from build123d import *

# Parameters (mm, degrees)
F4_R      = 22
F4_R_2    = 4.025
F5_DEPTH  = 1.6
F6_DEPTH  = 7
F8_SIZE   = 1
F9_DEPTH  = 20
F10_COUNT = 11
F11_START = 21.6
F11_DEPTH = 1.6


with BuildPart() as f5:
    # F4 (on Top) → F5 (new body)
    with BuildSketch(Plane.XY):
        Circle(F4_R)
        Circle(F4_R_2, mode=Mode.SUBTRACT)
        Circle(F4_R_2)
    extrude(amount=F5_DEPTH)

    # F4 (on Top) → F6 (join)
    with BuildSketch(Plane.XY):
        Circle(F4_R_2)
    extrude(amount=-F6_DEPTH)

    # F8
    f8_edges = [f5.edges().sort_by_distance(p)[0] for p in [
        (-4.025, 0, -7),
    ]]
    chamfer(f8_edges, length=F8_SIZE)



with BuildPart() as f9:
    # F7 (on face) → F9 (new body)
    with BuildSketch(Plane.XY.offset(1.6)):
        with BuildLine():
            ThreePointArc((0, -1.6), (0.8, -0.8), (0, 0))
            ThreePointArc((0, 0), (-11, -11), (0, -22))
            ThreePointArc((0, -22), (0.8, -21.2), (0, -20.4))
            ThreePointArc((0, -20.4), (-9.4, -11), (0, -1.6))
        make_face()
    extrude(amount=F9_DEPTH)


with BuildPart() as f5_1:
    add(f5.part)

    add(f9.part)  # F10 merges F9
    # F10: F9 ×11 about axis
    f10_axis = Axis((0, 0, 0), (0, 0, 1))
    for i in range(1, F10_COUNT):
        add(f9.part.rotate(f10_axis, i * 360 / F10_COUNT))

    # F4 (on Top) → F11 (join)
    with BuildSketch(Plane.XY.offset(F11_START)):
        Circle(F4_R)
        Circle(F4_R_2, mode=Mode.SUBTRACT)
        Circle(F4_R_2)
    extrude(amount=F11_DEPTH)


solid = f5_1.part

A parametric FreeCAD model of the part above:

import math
import FreeCAD as App
import Part
import Sketcher

V = App.Vector


def edges_at(feature, points):
    """Names of the edges that pass closest to the given points."""
    edges = feature.Shape.Edges
    near = lambda p: min(range(len(edges)), key=lambda i: edges[i].distToShape(Part.Vertex(*p))[0])
    return sorted({f"Edge{near(p) + 1}" for p in points})

doc = App.newDocument("Part")
body = doc.addObject("PartDesign::Body", "Body")

# Sketch on XY plane
sketch1 = body.newObject("Sketcher::SketchObject", "Sketch")
sketch1.AttachmentSupport = (doc.getObject("XY_Plane"), [""])
sketch1.MapMode = "FlatFace"
sketch1.addGeometry(Part.Circle(V(0, 0, 0), V(0, 0, 1), 22), False)
sketch1.addConstraint(Sketcher.Constraint("Coincident", 0, 3, -1, 1))
sketch1.addConstraint(Sketcher.Constraint("Diameter", 0, 44.0))
pad1 = body.newObject("PartDesign::Pad", "Pad")
pad1.Profile = sketch1
pad1.Length = 1.6

# Sketch on XY plane
sketch2 = body.newObject("Sketcher::SketchObject", "Sketch001")
sketch2.AttachmentSupport = (doc.getObject("XY_Plane"), [""])
sketch2.MapMode = "FlatFace"
sketch2.addGeometry(Part.Circle(V(0, 0, 0), V(0, 0, 1), 4), False)
sketch2.addConstraint(Sketcher.Constraint("Coincident", 0, 3, -1, 1))
sketch2.addConstraint(Sketcher.Constraint("Diameter", 0, 8.05))
pad2 = body.newObject("PartDesign::Pad", "Pad001")
pad2.Profile = sketch2
pad2.Length = 7
pad2.Reversed = True
doc.recompute()

chamfer = body.newObject("PartDesign::Chamfer", "Chamfer")
chamfer.Base = (pad2, edges_at(pad2, [(-4.025, 0, -7)]))
chamfer.Size = 1
body2 = doc.addObject("PartDesign::Body", "Body001")

# Sketch on XY plane
sketch3 = body2.newObject("Sketcher::SketchObject", "Sketch002")
sketch3.AttachmentSupport = (doc.getObject("XY_Plane001"), [""])
sketch3.MapMode = "FlatFace"
sketch3.AttachmentOffset = App.Placement(V(0, 0, 1.6), App.Rotation())
sketch3.addGeometry(Part.ArcOfCircle(Part.Circle(V(0, -0.8, 0), V(0, 0, 1), 0.8), math.radians(-90), math.radians(90)), False)
sketch3.addGeometry(Part.ArcOfCircle(Part.Circle(V(0, -11, 0), V(0, 0, 1), 11), math.radians(90), math.radians(270)), False)
sketch3.addGeometry(Part.ArcOfCircle(Part.Circle(V(0, -21.2, 0), V(0, 0, 1), 0.8), math.radians(-90), math.radians(90)), False)
sketch3.addGeometry(Part.ArcOfCircle(Part.Circle(V(0, -11, 0), V(0, 0, 1), 9.4), math.radians(90), math.radians(270)), False)
sketch3.addConstraint(Sketcher.Constraint("Tangent", 0, 2, 1, 1))
sketch3.addConstraint(Sketcher.Constraint("Tangent", 1, 2, 2, 1))
sketch3.addConstraint(Sketcher.Constraint("Tangent", 2, 2, 3, 2))
sketch3.addConstraint(Sketcher.Constraint("Tangent", 3, 1, 0, 1))
sketch3.addConstraint(Sketcher.Constraint("Coincident", 0, 2, -1, 1))
sketch3.addConstraint(Sketcher.Constraint("Coincident", 3, 3, 1, 3))
sketch3.addConstraint(Sketcher.Constraint("PointOnObject", 0, 3, -2))
sketch3.addConstraint(Sketcher.Constraint("PointOnObject", 2, 3, -2))
sketch3.addConstraint(Sketcher.Constraint("Radius", 1, 11.0))
sketch3.addConstraint(Sketcher.Constraint("Radius", 0, 0.8))
pad3 = body2.newObject("PartDesign::Pad", "Pad002")
pad3.Profile = sketch3
pad3.Length = 20
doc.recompute()

body3 = doc.addObject("PartDesign::Body", "Body002")
body3.BaseFeature = body2
boolean = body.newObject("PartDesign::Boolean", "Boolean")
boolean.Type = "Fuse"
boolean.addObjects([body3])
doc.recompute()

body4 = doc.addObject("PartDesign::Body", "Body003")
body4.BaseFeature = body2
body4.Placement = App.Placement(V(0, 0, 0), App.Rotation(V(0, 0, 1), 32.727273))
boolean2 = body.newObject("PartDesign::Boolean", "Boolean001")
boolean2.Type = "Fuse"
boolean2.addObjects([body4])
doc.recompute()

body5 = doc.addObject("PartDesign::Body", "Body004")
body5.BaseFeature = body2
body5.Placement = App.Placement(V(0, 0, 0), App.Rotation(V(0, 0, 1), 65.454545))
boolean3 = body.newObject("PartDesign::Boolean", "Boolean002")
boolean3.Type = "Fuse"
boolean3.addObjects([body5])
doc.recompute()

body6 = doc.addObject("PartDesign::Body", "Body005")
body6.BaseFeature = body2
body6.Placement = App.Placement(V(0, 0, 0), App.Rotation(V(0, 0, 1), 98.181818))
boolean4 = body.newObject("PartDesign::Boolean", "Boolean003")
boolean4.Type = "Fuse"
boolean4.addObjects([body6])
doc.recompute()

body7 = doc.addObject("PartDesign::Body", "Body006")
body7.BaseFeature = body2
body7.Placement = App.Placement(V(0, 0, 0), App.Rotation(V(0, 0, 1), 130.909091))
boolean5 = body.newObject("PartDesign::Boolean", "Boolean004")
boolean5.Type = "Fuse"
boolean5.addObjects([body7])
doc.recompute()

body8 = doc.addObject("PartDesign::Body", "Body007")
body8.BaseFeature = body2
body8.Placement = App.Placement(V(0, 0, 0), App.Rotation(V(0, 0, 1), 163.636364))
boolean6 = body.newObject("PartDesign::Boolean", "Boolean005")
boolean6.Type = "Fuse"
boolean6.addObjects([body8])
doc.recompute()

body9 = doc.addObject("PartDesign::Body", "Body008")
body9.BaseFeature = body2
body9.Placement = App.Placement(V(0, 0, 0), App.Rotation(V(0, 0, 1), 196.363636))
boolean7 = body.newObject("PartDesign::Boolean", "Boolean006")
boolean7.Type = "Fuse"
boolean7.addObjects([body9])
doc.recompute()

body10 = doc.addObject("PartDesign::Body", "Body009")
body10.BaseFeature = body2
body10.Placement = App.Placement(V(0, 0, 0), App.Rotation(V(0, 0, 1), 229.090909))
boolean8 = body.newObject("PartDesign::Boolean", "Boolean007")
boolean8.Type = "Fuse"
boolean8.addObjects([body10])
doc.recompute()

body11 = doc.addObject("PartDesign::Body", "Body010")
body11.BaseFeature = body2
body11.Placement = App.Placement(V(0, 0, 0), App.Rotation(V(0, 0, 1), 261.818182))
boolean9 = body.newObject("PartDesign::Boolean", "Boolean008")
boolean9.Type = "Fuse"
boolean9.addObjects([body11])
doc.recompute()

body12 = doc.addObject("PartDesign::Body", "Body011")
body12.BaseFeature = body2
body12.Placement = App.Placement(V(0, 0, 0), App.Rotation(V(0, 0, 1), 294.545455))
boolean10 = body.newObject("PartDesign::Boolean", "Boolean009")
boolean10.Type = "Fuse"
boolean10.addObjects([body12])
doc.recompute()

body2.Placement = App.Placement(V(0, 0, 0), App.Rotation(V(0, 0, 1), 327.272727))
boolean11 = body.newObject("PartDesign::Boolean", "Boolean010")
boolean11.Type = "Fuse"
boolean11.addObjects([body2])

# Sketch on XY plane
sketch4 = body.newObject("Sketcher::SketchObject", "Sketch003")
sketch4.AttachmentSupport = (doc.getObject("XY_Plane"), [""])
sketch4.MapMode = "FlatFace"
sketch4.AttachmentOffset = App.Placement(V(0, 0, 21.6), App.Rotation())
sketch4.addGeometry(Part.Circle(V(0, 0, 0), V(0, 0, 1), 22), False)
sketch4.addConstraint(Sketcher.Constraint("Coincident", 0, 3, -1, 1))
sketch4.addConstraint(Sketcher.Constraint("Diameter", 0, 44.0))
pad4 = body.newObject("PartDesign::Pad", "Pad003")
pad4.Profile = sketch4
pad4.Length = 1.6

doc.recompute()
